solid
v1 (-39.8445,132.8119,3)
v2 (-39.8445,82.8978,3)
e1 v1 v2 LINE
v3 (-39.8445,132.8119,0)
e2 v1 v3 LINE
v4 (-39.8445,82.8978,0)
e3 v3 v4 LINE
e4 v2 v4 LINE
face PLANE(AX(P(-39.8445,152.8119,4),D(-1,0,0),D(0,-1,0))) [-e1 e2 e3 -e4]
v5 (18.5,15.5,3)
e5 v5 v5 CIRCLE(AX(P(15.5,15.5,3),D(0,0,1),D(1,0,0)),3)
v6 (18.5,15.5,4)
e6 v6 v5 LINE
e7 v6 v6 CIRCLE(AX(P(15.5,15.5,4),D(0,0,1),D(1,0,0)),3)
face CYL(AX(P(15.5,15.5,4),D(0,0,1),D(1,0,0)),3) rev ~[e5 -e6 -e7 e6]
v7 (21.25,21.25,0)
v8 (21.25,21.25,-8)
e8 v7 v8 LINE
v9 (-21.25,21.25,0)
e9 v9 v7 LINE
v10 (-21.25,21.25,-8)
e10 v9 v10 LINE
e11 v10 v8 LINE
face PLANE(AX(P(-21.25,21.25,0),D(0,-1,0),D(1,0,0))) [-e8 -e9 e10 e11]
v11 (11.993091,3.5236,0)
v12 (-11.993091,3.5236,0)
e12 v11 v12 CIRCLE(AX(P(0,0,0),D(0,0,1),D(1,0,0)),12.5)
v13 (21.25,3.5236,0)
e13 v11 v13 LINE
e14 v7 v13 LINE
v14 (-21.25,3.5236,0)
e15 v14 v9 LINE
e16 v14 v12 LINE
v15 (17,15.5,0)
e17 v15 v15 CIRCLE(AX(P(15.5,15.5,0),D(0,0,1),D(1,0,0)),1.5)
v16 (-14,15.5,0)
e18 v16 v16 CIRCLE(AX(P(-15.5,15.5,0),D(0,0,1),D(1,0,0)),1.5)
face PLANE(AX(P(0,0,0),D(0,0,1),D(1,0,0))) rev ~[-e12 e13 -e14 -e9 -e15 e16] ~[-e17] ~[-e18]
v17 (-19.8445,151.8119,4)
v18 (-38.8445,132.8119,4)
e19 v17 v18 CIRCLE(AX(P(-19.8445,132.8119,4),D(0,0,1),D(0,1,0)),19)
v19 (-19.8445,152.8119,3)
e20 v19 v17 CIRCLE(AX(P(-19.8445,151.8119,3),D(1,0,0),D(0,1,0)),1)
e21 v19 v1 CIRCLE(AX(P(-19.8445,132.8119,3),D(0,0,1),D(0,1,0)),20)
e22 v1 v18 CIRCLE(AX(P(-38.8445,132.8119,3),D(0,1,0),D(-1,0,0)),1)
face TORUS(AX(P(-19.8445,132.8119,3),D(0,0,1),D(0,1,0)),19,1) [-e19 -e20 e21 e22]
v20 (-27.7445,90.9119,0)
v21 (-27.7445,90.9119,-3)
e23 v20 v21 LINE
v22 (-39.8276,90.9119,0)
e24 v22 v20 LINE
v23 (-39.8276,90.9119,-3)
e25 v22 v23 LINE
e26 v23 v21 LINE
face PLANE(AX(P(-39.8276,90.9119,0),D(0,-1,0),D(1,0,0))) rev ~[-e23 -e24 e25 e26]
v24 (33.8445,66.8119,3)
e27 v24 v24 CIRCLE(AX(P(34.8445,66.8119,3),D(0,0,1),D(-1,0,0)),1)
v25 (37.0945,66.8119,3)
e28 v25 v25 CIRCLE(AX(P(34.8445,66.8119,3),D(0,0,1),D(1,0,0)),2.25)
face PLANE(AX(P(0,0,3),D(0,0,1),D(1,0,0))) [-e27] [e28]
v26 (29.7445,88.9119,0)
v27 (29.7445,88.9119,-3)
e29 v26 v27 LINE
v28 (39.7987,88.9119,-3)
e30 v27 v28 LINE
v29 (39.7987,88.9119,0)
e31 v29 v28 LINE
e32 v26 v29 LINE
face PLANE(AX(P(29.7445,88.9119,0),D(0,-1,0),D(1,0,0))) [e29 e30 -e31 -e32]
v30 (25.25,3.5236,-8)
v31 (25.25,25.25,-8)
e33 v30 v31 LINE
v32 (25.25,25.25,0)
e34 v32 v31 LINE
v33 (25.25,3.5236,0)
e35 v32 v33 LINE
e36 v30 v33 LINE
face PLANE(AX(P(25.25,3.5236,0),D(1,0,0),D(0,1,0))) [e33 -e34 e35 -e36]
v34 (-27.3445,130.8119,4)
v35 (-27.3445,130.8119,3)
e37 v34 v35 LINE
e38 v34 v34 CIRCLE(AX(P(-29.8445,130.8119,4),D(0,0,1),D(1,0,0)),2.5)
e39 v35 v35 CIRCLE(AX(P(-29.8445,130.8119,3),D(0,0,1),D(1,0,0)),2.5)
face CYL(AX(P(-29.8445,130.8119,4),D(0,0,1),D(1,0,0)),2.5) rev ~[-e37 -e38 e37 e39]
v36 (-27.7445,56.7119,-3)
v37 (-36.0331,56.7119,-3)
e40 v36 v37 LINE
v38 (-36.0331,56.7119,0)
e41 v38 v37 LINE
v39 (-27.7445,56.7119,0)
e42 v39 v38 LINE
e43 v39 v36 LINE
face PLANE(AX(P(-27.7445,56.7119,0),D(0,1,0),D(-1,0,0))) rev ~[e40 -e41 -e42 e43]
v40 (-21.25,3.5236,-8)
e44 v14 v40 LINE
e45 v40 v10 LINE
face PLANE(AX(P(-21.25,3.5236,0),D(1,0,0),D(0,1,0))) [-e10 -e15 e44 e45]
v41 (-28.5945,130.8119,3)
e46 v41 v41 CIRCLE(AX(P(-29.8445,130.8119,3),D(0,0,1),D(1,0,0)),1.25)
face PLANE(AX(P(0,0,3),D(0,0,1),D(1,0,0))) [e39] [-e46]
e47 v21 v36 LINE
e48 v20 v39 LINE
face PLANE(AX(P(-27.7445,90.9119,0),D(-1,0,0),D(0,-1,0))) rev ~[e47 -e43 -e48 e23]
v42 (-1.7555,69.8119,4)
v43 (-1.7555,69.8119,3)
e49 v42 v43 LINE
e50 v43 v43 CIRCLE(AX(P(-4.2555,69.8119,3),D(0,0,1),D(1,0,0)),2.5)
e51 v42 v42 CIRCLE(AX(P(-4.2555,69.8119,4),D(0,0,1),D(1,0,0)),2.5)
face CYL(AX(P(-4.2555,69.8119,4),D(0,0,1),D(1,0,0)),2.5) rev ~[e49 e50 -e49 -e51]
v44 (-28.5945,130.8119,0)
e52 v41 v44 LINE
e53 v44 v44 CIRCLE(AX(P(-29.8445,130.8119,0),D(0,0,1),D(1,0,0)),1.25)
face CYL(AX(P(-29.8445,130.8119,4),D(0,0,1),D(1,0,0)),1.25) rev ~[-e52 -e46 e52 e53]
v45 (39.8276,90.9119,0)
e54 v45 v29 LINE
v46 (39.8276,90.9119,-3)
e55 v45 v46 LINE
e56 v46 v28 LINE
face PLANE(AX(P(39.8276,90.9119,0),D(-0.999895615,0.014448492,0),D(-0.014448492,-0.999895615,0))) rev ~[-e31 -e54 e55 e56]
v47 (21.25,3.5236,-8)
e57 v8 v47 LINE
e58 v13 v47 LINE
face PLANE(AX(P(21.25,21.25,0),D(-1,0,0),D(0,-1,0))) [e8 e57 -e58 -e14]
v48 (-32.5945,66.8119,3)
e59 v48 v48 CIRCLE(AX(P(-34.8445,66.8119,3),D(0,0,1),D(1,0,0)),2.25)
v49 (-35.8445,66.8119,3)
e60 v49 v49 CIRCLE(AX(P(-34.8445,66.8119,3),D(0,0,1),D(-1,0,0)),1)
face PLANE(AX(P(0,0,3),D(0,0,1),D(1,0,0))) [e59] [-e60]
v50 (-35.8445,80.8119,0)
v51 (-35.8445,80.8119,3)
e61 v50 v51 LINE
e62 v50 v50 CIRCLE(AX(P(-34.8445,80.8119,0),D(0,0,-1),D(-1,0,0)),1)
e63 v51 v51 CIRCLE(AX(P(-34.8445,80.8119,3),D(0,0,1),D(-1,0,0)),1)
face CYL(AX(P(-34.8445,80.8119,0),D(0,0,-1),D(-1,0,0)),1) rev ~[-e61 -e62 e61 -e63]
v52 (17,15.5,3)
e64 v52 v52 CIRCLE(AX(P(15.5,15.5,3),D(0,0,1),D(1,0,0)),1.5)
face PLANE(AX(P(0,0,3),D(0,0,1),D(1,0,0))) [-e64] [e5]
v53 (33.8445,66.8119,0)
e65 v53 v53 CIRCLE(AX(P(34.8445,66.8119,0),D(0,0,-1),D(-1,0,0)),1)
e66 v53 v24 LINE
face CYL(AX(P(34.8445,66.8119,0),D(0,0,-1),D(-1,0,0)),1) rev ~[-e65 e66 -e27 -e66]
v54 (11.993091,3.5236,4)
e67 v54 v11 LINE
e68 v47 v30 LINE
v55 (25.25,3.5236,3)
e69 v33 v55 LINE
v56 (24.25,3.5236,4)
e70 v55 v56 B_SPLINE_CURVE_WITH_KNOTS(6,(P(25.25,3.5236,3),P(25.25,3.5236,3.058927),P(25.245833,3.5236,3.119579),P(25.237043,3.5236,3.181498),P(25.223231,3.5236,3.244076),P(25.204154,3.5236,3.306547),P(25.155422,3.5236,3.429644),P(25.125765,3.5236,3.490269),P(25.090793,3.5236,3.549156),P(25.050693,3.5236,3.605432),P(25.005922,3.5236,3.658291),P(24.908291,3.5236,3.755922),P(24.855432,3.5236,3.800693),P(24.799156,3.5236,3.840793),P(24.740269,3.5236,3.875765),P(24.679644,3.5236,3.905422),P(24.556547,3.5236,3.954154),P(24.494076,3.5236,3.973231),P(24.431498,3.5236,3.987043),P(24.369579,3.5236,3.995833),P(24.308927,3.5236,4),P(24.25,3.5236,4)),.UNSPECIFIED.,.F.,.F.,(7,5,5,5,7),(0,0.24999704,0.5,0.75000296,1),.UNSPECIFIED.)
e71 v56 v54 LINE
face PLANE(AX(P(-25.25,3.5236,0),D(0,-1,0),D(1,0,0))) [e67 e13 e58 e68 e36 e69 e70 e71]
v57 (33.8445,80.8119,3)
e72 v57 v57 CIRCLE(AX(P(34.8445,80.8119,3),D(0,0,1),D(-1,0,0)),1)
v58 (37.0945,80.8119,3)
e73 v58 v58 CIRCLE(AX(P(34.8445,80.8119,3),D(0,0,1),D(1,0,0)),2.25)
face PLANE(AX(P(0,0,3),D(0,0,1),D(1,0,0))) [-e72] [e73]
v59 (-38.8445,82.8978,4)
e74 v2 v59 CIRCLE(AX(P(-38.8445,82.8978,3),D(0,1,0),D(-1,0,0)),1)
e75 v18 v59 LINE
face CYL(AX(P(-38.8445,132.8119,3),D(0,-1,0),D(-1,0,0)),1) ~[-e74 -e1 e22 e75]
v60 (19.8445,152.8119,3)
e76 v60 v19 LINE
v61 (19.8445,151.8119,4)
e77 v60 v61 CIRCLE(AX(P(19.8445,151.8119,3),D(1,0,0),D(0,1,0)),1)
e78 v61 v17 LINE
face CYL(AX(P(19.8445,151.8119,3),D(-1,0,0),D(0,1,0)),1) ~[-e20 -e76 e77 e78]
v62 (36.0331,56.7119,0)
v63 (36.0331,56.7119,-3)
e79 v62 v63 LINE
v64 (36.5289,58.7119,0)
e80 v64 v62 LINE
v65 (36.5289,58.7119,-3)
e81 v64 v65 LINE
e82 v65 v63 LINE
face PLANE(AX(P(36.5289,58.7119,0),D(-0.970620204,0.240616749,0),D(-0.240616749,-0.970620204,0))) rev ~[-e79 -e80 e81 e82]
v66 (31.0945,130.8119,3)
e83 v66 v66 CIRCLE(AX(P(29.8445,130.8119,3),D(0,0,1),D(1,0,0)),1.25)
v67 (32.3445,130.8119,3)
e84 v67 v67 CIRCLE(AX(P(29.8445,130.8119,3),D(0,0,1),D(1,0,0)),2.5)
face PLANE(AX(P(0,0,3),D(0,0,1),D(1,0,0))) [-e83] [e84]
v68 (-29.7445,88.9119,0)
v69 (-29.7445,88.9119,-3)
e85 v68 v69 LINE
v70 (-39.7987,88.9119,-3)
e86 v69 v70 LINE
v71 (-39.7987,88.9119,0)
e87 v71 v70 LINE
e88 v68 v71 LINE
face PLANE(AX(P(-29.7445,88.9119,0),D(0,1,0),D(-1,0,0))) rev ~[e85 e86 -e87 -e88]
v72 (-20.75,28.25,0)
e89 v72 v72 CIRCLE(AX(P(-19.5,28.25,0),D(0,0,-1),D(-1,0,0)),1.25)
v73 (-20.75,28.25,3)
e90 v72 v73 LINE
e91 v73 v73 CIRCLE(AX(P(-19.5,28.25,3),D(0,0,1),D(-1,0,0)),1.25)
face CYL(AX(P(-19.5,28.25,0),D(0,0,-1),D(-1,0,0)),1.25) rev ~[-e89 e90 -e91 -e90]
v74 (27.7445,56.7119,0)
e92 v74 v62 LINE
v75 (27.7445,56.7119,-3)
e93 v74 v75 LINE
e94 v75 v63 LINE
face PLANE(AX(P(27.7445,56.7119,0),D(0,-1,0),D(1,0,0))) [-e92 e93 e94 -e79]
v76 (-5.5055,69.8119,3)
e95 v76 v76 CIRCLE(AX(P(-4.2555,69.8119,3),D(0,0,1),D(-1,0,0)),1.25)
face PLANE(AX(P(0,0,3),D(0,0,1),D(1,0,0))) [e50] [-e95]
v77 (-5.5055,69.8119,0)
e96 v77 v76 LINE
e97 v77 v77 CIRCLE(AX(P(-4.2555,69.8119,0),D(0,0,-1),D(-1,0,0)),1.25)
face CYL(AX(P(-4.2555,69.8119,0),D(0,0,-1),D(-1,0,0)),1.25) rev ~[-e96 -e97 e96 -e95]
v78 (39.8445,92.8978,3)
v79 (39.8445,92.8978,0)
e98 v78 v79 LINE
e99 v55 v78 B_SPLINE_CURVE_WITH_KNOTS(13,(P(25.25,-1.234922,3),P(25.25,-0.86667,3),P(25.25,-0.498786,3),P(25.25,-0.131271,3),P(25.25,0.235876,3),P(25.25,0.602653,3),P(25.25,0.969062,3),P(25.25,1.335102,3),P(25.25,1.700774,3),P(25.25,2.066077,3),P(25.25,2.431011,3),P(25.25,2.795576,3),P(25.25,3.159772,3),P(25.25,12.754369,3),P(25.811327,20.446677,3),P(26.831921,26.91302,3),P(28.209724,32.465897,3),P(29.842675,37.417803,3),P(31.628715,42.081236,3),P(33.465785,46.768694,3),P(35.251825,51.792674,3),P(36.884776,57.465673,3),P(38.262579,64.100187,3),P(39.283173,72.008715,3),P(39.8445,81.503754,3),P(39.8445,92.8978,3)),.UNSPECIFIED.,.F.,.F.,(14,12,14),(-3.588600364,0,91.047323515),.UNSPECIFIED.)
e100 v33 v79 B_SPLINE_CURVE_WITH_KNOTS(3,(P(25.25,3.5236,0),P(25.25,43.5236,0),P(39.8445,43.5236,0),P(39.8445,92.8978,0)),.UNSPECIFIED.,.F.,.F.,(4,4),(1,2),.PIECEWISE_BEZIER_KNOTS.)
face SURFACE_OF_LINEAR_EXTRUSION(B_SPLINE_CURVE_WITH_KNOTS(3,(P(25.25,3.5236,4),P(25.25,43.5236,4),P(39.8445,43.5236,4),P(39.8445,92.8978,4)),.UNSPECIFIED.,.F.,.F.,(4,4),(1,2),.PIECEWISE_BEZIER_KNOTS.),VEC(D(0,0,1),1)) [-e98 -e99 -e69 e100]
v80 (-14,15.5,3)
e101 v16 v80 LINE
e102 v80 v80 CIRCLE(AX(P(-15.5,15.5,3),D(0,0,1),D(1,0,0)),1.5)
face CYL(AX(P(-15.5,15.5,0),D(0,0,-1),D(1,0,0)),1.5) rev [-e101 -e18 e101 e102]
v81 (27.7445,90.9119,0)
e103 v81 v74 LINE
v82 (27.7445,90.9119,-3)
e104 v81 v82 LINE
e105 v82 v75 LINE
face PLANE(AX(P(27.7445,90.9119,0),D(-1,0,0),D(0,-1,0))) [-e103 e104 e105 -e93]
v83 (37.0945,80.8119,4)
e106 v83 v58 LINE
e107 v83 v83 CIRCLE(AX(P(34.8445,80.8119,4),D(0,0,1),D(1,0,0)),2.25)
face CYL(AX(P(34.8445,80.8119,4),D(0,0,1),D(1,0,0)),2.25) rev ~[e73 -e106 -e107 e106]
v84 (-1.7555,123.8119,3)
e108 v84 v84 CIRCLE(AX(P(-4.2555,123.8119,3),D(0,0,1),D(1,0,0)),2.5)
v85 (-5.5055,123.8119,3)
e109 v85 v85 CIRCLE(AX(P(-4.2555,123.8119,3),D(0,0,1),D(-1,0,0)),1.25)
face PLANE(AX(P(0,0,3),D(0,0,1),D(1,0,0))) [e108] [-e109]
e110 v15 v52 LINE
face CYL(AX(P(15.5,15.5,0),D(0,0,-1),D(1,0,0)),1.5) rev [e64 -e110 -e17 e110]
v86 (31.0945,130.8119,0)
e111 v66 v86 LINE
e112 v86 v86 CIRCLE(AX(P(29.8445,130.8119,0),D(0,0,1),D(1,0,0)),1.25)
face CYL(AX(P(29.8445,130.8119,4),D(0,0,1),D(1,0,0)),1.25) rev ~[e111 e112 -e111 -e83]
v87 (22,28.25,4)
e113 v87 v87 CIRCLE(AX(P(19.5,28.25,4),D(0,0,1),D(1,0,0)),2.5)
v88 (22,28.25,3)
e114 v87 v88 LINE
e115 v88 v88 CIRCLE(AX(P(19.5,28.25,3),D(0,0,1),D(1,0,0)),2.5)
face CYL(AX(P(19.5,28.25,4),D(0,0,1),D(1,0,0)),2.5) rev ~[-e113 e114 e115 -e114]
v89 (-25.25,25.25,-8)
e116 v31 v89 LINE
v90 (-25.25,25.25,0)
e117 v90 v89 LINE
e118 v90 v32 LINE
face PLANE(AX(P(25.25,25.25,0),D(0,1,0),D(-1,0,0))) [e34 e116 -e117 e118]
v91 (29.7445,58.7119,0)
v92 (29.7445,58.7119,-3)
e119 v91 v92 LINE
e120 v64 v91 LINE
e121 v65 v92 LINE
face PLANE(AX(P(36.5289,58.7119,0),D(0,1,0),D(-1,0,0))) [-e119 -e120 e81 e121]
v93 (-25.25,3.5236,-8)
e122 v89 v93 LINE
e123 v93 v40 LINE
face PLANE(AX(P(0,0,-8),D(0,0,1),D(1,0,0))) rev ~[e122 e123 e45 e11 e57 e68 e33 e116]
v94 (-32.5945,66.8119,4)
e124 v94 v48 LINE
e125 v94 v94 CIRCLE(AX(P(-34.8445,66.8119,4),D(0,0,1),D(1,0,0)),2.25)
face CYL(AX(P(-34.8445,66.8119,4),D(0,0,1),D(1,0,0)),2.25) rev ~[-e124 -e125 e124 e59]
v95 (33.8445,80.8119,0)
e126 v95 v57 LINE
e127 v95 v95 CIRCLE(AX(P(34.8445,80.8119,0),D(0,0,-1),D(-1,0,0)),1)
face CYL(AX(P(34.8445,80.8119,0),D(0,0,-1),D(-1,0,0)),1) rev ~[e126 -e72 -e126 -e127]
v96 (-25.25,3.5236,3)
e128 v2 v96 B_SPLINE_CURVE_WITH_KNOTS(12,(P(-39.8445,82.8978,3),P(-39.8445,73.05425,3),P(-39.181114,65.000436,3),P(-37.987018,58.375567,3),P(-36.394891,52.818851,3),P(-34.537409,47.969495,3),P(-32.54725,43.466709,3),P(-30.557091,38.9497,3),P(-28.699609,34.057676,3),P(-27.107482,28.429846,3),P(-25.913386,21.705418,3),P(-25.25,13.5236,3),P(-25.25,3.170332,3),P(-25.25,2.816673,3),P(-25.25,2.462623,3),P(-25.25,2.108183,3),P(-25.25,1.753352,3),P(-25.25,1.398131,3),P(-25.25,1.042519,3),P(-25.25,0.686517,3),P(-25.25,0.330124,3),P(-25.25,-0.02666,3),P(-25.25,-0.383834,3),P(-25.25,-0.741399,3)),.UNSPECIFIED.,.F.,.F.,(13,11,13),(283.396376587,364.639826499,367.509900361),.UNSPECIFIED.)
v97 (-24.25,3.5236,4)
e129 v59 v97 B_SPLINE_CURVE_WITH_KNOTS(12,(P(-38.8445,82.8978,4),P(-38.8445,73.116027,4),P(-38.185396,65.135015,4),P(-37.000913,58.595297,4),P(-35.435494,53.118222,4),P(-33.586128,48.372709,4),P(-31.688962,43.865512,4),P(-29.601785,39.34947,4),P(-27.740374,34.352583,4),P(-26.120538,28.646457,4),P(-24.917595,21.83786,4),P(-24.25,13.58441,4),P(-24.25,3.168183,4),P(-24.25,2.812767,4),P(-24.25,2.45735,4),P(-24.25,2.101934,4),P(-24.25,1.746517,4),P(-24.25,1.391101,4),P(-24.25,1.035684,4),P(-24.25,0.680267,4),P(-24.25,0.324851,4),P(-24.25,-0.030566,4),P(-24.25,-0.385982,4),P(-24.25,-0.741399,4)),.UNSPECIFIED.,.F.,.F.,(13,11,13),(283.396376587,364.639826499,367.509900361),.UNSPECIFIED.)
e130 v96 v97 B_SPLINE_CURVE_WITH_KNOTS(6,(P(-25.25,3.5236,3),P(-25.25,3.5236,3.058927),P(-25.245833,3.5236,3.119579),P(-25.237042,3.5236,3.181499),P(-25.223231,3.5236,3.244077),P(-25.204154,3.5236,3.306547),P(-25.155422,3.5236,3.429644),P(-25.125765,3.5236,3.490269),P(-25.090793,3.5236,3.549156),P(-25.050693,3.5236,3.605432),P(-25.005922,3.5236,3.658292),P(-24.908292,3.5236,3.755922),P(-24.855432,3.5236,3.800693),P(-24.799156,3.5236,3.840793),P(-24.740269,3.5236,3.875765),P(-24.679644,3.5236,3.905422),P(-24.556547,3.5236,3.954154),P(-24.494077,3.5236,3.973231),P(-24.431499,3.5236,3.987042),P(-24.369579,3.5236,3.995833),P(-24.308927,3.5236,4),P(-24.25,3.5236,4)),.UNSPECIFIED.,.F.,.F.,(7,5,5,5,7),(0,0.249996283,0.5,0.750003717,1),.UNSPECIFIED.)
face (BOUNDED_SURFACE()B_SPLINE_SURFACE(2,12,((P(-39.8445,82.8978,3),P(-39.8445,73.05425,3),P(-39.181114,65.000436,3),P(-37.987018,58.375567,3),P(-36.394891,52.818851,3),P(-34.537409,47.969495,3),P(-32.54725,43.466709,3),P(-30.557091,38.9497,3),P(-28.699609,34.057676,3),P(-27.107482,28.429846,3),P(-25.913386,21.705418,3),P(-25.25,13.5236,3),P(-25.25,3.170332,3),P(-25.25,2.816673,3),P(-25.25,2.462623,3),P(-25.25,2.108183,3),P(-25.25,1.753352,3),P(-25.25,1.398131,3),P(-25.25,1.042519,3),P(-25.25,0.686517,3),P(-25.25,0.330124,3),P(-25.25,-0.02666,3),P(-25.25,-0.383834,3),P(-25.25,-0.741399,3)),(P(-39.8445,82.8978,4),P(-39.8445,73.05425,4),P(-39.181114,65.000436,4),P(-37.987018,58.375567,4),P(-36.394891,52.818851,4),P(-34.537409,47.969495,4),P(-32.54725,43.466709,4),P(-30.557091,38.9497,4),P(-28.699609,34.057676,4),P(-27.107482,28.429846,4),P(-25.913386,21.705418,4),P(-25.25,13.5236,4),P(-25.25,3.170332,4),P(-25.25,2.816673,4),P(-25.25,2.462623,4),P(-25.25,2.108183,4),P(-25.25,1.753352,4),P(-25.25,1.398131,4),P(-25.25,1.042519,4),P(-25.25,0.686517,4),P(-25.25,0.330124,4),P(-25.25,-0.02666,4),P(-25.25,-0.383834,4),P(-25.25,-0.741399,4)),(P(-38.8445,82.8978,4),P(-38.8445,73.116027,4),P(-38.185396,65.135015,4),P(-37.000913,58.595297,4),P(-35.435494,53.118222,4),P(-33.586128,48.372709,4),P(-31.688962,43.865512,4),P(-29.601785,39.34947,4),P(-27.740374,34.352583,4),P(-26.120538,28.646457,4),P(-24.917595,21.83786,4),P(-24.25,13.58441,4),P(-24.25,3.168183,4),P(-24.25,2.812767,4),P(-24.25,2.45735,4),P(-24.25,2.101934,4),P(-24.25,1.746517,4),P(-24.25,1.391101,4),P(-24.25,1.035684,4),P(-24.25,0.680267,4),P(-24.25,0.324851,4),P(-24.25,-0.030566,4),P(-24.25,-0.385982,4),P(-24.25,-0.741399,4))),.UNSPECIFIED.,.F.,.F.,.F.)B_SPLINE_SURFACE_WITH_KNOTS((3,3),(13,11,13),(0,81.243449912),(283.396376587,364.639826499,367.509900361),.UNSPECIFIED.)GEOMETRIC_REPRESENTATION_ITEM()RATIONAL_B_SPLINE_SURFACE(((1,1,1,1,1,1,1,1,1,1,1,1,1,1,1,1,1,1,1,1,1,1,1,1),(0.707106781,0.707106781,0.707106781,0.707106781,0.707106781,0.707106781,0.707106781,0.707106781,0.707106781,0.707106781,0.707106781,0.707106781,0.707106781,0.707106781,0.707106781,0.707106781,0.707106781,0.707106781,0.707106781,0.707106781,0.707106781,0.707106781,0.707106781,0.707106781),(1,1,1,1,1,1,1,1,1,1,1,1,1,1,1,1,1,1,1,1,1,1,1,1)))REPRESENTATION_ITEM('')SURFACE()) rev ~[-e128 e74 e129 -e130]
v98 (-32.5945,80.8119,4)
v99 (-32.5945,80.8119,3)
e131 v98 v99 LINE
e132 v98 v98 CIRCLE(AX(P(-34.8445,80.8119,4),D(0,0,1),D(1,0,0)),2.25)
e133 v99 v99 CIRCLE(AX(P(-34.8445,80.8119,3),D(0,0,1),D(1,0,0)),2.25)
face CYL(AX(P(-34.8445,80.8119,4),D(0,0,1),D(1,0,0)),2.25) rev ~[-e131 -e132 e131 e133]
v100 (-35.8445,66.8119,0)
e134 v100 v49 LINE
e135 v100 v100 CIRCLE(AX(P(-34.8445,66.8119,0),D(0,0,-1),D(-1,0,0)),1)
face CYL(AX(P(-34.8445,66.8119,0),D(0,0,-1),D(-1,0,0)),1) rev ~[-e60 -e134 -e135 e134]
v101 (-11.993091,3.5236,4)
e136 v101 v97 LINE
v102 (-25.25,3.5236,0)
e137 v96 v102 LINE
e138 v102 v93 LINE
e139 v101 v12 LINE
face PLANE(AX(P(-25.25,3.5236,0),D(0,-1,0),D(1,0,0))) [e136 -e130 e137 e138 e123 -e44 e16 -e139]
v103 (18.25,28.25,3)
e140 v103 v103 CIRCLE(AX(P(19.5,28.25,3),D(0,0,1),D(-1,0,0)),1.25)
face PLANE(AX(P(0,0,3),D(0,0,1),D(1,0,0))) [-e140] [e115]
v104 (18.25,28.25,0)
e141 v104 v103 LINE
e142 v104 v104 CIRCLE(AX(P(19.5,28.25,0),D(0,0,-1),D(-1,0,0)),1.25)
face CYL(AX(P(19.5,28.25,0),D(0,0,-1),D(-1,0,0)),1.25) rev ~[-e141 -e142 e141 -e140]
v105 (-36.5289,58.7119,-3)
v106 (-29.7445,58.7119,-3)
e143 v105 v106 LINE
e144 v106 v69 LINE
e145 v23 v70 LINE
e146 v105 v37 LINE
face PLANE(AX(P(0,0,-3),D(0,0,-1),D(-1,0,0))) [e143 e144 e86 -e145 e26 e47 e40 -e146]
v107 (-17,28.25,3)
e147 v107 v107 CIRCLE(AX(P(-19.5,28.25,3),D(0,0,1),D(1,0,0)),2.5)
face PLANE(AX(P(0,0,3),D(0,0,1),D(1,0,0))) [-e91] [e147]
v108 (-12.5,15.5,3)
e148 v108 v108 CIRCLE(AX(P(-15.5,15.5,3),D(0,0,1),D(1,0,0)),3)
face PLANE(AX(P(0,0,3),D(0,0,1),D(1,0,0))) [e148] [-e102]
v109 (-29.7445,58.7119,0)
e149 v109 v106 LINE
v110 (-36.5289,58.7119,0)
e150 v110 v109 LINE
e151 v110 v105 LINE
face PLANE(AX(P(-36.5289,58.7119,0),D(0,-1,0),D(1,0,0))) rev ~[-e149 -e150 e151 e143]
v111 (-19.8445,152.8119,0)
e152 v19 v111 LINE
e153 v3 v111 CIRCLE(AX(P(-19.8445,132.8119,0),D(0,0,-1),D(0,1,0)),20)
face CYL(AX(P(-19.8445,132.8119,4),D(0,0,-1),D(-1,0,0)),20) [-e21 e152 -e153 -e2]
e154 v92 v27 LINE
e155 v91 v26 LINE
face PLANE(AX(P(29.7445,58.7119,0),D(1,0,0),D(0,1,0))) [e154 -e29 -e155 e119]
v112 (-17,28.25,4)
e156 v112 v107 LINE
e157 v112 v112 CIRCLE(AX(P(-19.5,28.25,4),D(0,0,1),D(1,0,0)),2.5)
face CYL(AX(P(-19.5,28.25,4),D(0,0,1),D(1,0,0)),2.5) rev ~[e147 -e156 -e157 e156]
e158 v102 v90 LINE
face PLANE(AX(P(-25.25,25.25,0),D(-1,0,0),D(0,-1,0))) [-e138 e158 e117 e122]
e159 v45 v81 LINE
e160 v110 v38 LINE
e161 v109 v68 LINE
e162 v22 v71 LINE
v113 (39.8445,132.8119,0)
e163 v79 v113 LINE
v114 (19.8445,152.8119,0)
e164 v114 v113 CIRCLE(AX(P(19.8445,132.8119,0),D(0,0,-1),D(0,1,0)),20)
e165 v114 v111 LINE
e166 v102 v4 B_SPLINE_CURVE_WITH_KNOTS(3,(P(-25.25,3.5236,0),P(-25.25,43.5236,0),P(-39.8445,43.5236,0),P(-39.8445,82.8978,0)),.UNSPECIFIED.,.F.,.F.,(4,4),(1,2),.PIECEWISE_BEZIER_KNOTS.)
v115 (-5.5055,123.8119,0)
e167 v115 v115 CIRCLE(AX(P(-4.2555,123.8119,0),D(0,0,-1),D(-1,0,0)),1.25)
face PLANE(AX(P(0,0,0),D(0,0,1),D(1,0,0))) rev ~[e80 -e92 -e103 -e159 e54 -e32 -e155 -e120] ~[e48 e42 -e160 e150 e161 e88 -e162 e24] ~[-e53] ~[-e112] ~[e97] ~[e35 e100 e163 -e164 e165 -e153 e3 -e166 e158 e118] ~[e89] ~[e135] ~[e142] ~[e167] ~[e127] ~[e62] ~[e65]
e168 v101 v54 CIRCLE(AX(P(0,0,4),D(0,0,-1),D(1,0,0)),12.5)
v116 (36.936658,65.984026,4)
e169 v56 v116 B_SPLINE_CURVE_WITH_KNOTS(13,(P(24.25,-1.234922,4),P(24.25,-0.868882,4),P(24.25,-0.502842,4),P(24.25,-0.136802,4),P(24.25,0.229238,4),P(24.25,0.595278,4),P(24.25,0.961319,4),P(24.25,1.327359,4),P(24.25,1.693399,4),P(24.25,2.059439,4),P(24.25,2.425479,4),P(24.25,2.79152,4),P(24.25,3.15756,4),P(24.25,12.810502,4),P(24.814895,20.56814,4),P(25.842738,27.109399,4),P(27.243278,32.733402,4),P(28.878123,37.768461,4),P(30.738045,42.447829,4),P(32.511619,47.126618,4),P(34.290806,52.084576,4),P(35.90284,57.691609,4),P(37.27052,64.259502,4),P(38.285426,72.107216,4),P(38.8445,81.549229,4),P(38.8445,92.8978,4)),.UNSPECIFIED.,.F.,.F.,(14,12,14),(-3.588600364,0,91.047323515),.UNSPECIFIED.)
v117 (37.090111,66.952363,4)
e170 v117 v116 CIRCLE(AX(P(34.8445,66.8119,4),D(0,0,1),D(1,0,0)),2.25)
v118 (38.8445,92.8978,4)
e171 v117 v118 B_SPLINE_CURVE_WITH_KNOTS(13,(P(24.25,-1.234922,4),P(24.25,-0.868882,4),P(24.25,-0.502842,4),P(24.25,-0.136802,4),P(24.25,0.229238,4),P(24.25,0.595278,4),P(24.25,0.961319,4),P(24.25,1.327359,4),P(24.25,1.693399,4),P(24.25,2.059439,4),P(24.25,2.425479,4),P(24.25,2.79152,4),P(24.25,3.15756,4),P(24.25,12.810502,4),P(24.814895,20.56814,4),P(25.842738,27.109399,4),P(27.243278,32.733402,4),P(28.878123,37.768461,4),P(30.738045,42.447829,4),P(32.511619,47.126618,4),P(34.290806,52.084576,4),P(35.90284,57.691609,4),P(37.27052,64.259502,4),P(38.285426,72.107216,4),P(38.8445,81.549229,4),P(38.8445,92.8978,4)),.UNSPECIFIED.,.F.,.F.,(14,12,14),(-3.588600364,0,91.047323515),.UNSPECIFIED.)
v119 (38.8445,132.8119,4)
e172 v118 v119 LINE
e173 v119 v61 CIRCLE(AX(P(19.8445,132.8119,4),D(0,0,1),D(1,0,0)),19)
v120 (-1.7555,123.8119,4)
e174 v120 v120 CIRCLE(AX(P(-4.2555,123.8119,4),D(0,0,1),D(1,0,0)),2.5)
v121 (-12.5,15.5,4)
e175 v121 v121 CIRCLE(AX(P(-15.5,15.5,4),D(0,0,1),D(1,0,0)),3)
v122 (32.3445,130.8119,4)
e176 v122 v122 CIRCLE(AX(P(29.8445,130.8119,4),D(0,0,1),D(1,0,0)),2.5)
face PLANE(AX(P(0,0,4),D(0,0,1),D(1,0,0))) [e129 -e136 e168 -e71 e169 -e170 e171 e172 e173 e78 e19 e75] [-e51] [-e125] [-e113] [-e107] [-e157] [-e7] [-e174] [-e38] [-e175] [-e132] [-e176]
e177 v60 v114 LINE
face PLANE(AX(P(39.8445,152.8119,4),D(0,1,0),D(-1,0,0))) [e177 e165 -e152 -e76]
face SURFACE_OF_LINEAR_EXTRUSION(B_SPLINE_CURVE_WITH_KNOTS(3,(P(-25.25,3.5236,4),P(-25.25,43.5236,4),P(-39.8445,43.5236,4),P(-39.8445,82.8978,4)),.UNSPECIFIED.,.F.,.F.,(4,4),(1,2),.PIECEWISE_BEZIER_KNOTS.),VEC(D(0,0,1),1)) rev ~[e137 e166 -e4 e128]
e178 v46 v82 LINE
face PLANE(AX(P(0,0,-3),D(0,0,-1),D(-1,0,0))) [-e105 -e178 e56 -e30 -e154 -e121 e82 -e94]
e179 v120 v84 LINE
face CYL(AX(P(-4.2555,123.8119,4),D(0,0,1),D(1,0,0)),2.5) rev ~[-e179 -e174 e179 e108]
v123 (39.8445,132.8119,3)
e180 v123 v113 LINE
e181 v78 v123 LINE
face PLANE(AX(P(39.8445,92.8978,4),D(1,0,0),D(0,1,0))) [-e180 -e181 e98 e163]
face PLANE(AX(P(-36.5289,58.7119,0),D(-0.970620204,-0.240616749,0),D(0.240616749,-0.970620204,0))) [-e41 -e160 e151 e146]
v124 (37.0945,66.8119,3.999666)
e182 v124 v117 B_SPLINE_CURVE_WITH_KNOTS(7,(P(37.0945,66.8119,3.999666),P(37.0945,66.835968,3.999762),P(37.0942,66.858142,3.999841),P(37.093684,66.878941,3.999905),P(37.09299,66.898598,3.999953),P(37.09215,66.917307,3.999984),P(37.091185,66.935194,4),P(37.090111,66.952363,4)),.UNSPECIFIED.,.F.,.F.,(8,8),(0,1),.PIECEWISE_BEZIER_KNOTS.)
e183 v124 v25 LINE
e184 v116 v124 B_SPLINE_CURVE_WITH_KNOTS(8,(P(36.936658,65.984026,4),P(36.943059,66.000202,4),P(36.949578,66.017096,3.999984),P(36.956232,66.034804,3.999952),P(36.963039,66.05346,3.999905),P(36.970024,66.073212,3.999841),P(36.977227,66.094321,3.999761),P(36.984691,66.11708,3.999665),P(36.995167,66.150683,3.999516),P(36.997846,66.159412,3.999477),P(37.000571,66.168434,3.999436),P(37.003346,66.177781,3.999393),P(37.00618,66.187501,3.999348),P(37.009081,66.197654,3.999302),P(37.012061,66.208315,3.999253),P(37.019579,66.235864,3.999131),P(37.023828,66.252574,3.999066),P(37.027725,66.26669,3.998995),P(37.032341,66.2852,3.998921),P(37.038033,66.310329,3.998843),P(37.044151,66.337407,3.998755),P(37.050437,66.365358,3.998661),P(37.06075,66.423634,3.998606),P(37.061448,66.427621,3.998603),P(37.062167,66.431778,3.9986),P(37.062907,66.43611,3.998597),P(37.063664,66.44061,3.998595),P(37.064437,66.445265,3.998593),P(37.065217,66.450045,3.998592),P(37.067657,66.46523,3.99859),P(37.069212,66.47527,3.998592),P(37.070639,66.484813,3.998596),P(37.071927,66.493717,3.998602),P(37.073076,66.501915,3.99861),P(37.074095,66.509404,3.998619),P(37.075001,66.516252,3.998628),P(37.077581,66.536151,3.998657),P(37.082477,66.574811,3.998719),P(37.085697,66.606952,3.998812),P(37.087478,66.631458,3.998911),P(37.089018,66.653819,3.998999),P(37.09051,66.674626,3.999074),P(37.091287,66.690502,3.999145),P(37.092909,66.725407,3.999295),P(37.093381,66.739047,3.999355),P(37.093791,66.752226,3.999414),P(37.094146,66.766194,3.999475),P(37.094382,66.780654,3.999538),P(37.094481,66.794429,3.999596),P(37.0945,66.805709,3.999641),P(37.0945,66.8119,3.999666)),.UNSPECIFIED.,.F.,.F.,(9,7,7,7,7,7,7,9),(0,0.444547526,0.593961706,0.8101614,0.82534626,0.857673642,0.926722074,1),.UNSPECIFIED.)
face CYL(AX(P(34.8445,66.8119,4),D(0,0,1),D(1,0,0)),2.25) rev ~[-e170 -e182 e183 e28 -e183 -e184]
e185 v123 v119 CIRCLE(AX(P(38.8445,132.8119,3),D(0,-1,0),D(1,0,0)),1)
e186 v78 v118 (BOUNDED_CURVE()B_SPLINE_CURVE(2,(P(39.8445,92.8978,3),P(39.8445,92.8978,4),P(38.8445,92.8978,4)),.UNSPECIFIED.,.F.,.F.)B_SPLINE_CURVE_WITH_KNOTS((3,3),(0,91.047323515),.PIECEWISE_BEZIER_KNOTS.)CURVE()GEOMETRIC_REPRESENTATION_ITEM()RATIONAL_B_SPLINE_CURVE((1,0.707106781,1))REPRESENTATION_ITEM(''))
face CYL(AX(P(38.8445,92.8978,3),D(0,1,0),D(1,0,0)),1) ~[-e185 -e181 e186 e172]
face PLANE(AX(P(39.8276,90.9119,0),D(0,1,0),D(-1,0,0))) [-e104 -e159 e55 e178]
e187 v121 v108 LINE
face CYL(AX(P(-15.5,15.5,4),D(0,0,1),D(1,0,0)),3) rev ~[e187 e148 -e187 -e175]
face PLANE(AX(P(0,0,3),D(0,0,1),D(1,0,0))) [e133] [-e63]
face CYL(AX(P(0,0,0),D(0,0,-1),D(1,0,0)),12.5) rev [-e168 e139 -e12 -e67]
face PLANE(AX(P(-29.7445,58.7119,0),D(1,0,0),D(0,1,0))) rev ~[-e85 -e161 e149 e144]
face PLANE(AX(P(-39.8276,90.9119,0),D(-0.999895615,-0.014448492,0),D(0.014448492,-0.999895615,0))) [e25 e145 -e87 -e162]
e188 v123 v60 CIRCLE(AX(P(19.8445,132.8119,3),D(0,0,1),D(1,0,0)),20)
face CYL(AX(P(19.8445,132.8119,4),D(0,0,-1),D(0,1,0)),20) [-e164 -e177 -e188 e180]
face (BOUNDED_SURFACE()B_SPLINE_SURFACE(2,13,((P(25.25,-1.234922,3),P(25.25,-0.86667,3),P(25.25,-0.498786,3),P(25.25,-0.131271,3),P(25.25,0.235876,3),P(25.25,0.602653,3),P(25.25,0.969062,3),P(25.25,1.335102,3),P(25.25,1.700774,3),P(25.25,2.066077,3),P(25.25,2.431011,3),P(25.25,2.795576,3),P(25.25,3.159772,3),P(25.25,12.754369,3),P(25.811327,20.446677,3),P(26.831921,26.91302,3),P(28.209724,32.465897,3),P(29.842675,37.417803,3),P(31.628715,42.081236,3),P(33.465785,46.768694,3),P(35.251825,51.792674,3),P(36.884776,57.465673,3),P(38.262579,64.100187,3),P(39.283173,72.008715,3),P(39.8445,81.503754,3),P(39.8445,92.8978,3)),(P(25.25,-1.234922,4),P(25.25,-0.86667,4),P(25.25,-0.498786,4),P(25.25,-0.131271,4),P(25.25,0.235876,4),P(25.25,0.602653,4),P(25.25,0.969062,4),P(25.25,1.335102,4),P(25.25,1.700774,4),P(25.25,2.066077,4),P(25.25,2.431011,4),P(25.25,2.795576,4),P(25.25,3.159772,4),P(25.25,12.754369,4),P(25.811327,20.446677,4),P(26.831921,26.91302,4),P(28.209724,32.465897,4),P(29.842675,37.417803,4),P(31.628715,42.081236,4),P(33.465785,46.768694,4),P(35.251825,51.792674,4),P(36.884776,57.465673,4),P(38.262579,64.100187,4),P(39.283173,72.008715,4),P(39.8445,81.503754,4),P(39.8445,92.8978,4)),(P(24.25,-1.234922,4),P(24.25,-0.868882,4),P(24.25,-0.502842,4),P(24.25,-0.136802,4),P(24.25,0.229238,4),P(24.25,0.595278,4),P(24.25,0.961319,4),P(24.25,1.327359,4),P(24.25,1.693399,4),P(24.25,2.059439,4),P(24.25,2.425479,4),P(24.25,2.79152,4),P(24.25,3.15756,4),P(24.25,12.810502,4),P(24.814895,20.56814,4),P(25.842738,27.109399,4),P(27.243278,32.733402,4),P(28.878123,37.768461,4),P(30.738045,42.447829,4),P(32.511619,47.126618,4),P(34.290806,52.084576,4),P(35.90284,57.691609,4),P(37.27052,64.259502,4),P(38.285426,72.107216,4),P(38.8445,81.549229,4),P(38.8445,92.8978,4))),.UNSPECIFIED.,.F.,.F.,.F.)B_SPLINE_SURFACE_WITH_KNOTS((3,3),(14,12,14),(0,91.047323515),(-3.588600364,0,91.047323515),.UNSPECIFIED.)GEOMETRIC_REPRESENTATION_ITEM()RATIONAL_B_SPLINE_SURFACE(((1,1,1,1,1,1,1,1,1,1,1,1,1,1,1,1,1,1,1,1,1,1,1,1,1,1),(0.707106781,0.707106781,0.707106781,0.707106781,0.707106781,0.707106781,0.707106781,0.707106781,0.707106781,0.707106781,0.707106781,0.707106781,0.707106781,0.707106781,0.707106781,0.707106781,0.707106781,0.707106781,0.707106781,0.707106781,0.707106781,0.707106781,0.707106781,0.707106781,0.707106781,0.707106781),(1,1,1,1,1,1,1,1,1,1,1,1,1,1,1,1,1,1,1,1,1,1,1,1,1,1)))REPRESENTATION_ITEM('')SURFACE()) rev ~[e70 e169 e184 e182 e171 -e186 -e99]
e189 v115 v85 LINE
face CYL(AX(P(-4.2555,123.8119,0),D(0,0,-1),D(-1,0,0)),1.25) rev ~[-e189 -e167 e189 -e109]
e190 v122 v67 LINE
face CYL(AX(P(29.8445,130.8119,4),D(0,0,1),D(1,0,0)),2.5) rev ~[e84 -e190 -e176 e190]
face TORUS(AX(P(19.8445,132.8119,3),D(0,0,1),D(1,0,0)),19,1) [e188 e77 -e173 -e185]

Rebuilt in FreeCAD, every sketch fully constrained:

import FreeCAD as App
import Part
import Sketcher
from FreeCAD import Vector


def edges_at(feature, points):
    """Names of the edges that pass closest to the given points."""
    edges = feature.Shape.Edges
    near = lambda p: min(range(len(edges)), key=lambda i: edges[i].distToShape(Part.Vertex(*p))[0])
    return sorted({f"Edge{near(p) + 1}" for p in points})


def add_polygon(sketch, points):
    """Adds a closed chain of lines whose ends are joined by coincident constraints."""
    first, n = sketch.GeometryCount, len(points)
    for a, b in zip(points, points[1:] + points[:1]):
        sketch.addGeometry(Part.LineSegment(App.Vector(*a, 0), App.Vector(*b, 0)), False)
    for i in range(n):
        sketch.addConstraint(Sketcher.Constraint("Coincident", first + i, 2, first + (i + 1) % n, 1))

doc = App.newDocument("Part")
body = doc.addObject("PartDesign::Body", "Body")

# Sketch on XY plane
sketch1 = doc.addObject("Sketcher::SketchObject", "Sketch")
body.addObject(sketch1)
sketch1.AttachmentSupport = (doc.XY_Plane, [""])
sketch1.MapMode = "FlatFace"
add_polygon(sketch1, [(-25.25, 3.5236), (25.25, 3.5236), (25.25, 25.25), (-25.25, 25.25)])  # lines 0-3
sketch1.addGeometry(Part.Circle(Vector(15.5, 15.5, 0), Vector(0, 0, 1), 1.5), False)  # 4
sketch1.addGeometry(Part.Circle(Vector(-15.5, 15.5, 0), Vector(0, 0, 1), 1.5), False)  # 5
sketch1.addConstraint([
    Sketcher.Constraint("Horizontal", 0),
    Sketcher.Constraint("Vertical", 1),
    Sketcher.Constraint("Horizontal", 2),
    Sketcher.Constraint("Vertical", 3),
    Sketcher.Constraint("Equal", 4, 5),
    Sketcher.Constraint("Symmetric", 4, 3, 5, 3, -2),
    Sketcher.Constraint("Diameter", 4, 3.0),
    Sketcher.Constraint("DistanceX", -1, 1, 4, 3, 15.5),
    Sketcher.Constraint("DistanceY", -1, 1, 4, 3, 15.5),
    Sketcher.Constraint("DistanceX", 0, 1, 0, 2, 50.5),
    Sketcher.Constraint("DistanceX", -1, 1, 0, 2, 25.25),
    Sketcher.Constraint("DistanceY", -1, 1, 1, 2, 25.25),
    Sketcher.Constraint("DistanceY", 1, 1, 1, 2, 21.7264),
])
pad1 = doc.addObject("PartDesign::Pad", "Pad")
body.addObject(pad1)
pad1.Profile = sketch1
pad1.Length = 4

# Sketch on XY plane
sketch2 = doc.addObject("Sketcher::SketchObject", "Sketch001")
body.addObject(sketch2)
sketch2.AttachmentSupport = (doc.XY_Plane, [""])
sketch2.MapMode = "FlatFace"
add_polygon(sketch2, [(-21.25, 3.5236), (-21.25, 21.25), (21.25, 21.25), (21.25, 3.5236), (25.25, 3.5236), (25.25, 25.25), (-25.25, 25.25), (-25.25, 3.5236)])  # lines 0-7
sketch2.addConstraint([
    Sketcher.Constraint("Vertical", 0),
    Sketcher.Constraint("Horizontal", 1),
    Sketcher.Constraint("Vertical", 2),
    Sketcher.Constraint("Horizontal", 3),
    Sketcher.Constraint("Vertical", 4),
    Sketcher.Constraint("Horizontal", 5),
    Sketcher.Constraint("Vertical", 6),
    Sketcher.Constraint("Horizontal", 7),
    Sketcher.Constraint("Symmetric", 3, 2, 6, 2, -2),
    Sketcher.Constraint("Equal", 3, 7),
    Sketcher.Constraint("DistanceX", 3, 1, 3, 2, 4.0),
    Sketcher.Constraint("DistanceX", 1, 1, 1, 2, 42.5),
    Sketcher.Constraint("DistanceY", 1, 2, 4, 2, 4.0),
    Sketcher.Constraint("DistanceY", -1, 1, 0, 2, 21.25),
    Sketcher.Constraint("DistanceY", 0, 1, 0, 2, 17.7264),
])
pad2 = doc.addObject("PartDesign::Pad", "Pad001")
body.addObject(pad2)
pad2.Profile = sketch2
pad2.Length = 8
pad2.Reversed = True

# Sketch on XY plane
sketch3 = doc.addObject("Sketcher::SketchObject", "Sketch002")
body.addObject(sketch3)
sketch3.AttachmentSupport = (doc.XY_Plane, [""])
sketch3.MapMode = "FlatFace"
sketch3.AttachmentOffset = App.Placement(Vector(0, 0, 4), App.Rotation())
sketch3.addGeometry([
    Part.BSplineCurve([Vector(-25.25, 3.5236, 0), Vector(-25.25, 43.5236, 0), Vector(-39.8445, 43.5236, 0), Vector(-39.8445, 82.8978, 0)], [4, 4], [1, 2], False, 3, [1, 1, 1, 1], False),  # 0
    Part.LineSegment(Vector(-25.25, 3.5236, 0), Vector(25.25, 3.5236, 0)),  # 1
    Part.BSplineCurve([Vector(25.25, 3.5236, 0), Vector(25.25, 43.5236, 0), Vector(39.8445, 43.5236, 0), Vector(39.8445, 92.8978, 0)], [4, 4], [1, 2], False, 3, [1, 1, 1, 1], False),  # 2
    Part.LineSegment(Vector(39.8445, 92.8978, 0), Vector(39.8445, 152.8119, 0)),  # 3
    Part.LineSegment(Vector(39.8445, 152.8119, 0), Vector(-39.8445, 152.8119, 0)),  # 4
    Part.LineSegment(Vector(-39.8445, 152.8119, 0), Vector(-39.8445, 82.8978, 0)),  # 5
    Part.Circle(Vector(-15.5, 15.5, 0), Vector(0, 0, 1), 1.5),  # 6
    Part.Circle(Vector(15.5, 15.5, 0), Vector(0, 0, 1), 1.5),  # 7
], False)
sketch3.addConstraint([
    Sketcher.Constraint("Block", 0),
    Sketcher.Constraint("Block", 2),
    Sketcher.Constraint("Coincident", 0, 1, 1, 1),
    Sketcher.Constraint("Coincident", 1, 2, 2, 1),
    Sketcher.Constraint("Coincident", 2, 2, 3, 1),
    Sketcher.Constraint("Coincident", 3, 2, 4, 1),
    Sketcher.Constraint("Coincident", 4, 2, 5, 1),
    Sketcher.Constraint("Coincident", 5, 2, 0, 2),
    Sketcher.Constraint("Vertical", 3),
    Sketcher.Constraint("Horizontal", 4),
    Sketcher.Constraint("Vertical", 5),
    Sketcher.Constraint("Equal", 6, 7),
    Sketcher.Constraint("Symmetric", 6, 3, 7, 3, -2),
    Sketcher.Constraint("Diameter", 6, 3.0),
    Sketcher.Constraint("DistanceX", 6, 3, 7, 3, 31.0),
    Sketcher.Constraint("DistanceY", -1, 1, 6, 3, 15.5),
    Sketcher.Constraint("DistanceY", 3, 1, 3, 2, 59.914),
])
pad3 = doc.addObject("PartDesign::Pad", "Pad002")
body.addObject(pad3)
pad3.Profile = sketch3
pad3.Length = 4
pad3.Reversed = True
doc.recompute()

fillet = doc.addObject("PartDesign::Fillet", "Fillet")
body.addObject(fillet)
fillet.Base = (pad3, edges_at(pad3, [(-39.844, 152.812, 2), (39.844, 152.812, 2)]))
fillet.Radius = 20

# Sketch on XY plane
sketch4 = doc.addObject("Sketcher::SketchObject", "Sketch003")
body.addObject(sketch4)
sketch4.AttachmentSupport = (doc.XY_Plane, [""])
sketch4.MapMode = "FlatFace"
sketch4.addGeometry([
    Part.Circle(Vector(19.5, 28.25, 0), Vector(0, 0, 1), 1.25),
    Part.Circle(Vector(-19.5, 28.25, 0), Vector(0, 0, 1), 1.25),
], False)
sketch4.addConstraint([
    Sketcher.Constraint("Equal", 0, 1),
    Sketcher.Constraint("Symmetric", 0, 3, 1, 3, -2),
    Sketcher.Constraint("Diameter", 0, 2.5),
    Sketcher.Constraint("DistanceX", -1, 1, 0, 3, 19.5),
    Sketcher.Constraint("DistanceY", -1, 1, 0, 3, 28.25),
])
pocket1 = doc.addObject("PartDesign::Pocket", "Pocket")
body.addObject(pocket1)
pocket1.Profile = sketch4
pocket1.Length = 10
pocket1.Reversed = True

# Sketch on XY plane
sketch5 = doc.addObject("Sketcher::SketchObject", "Sketch004")
body.addObject(sketch5)
sketch5.AttachmentSupport = (doc.XY_Plane, [""])
sketch5.MapMode = "FlatFace"
sketch5.addGeometry([
    Part.Circle(Vector(34.8445, 80.8119, 0), Vector(0, 0, 1), 1),
    Part.Circle(Vector(34.8445, 66.8119, 0), Vector(0, 0, 1), 1),
    Part.Circle(Vector(-34.8445, 80.8119, 0), Vector(0, 0, 1), 1),
    Part.Circle(Vector(-34.8445, 66.8119, 0), Vector(0, 0, 1), 1),
], False)
sketch5.addConstraint([
    Sketcher.Constraint("Equal", 0, 1),
    Sketcher.Constraint("Equal", 1, 2),
    Sketcher.Constraint("Equal", 2, 3),
    Sketcher.Constraint("Symmetric", 0, 3, 2, 3, -2),
    Sketcher.Constraint("Symmetric", 1, 3, 3, 3, -2),
    Sketcher.Constraint("Vertical", 0, 3, 1, 3),
    Sketcher.Constraint("Diameter", 0, 2.0),
    Sketcher.Constraint("DistanceY", 1, 3, 0, 3, 14.0),
    Sketcher.Constraint("DistanceY", -1, 1, 0, 3, 80.812),
    Sketcher.Constraint("DistanceX", 2, 3, 0, 3, 69.689),
])
pocket2 = doc.addObject("PartDesign::Pocket", "Pocket001")
body.addObject(pocket2)
pocket2.Profile = sketch5
pocket2.Length = 10
pocket2.Reversed = True

# Sketch on XY plane
sketch6 = doc.addObject("Sketcher::SketchObject", "Sketch005")
body.addObject(sketch6)
sketch6.AttachmentSupport = (doc.XY_Plane, [""])
sketch6.MapMode = "FlatFace"
add_polygon(sketch6, [(29.7445, 58.7119), (36.5289, 58.7119), (36.0331, 56.7119), (27.7445, 56.7119), (27.7445, 90.9119), (39.8276, 90.9119), (39.7987, 88.9119), (29.7445, 88.9119)])  # lines 0-7
sketch6.addConstraint([
    Sketcher.Constraint("Horizontal", 0),
    Sketcher.Constraint("Horizontal", 2),
    Sketcher.Constraint("Vertical", 3),
    Sketcher.Constraint("Horizontal", 4),
    Sketcher.Constraint("Horizontal", 6),
    Sketcher.Constraint("Vertical", 7),
    Sketcher.Constraint("DistanceY", 1, 2, 0, 2, 2.0),
    Sketcher.Constraint("DistanceY", 5, 2, 4, 2, 2.0),
    Sketcher.Constraint("DistanceX", 3, 2, 6, 2, 2.0),
    Sketcher.Constraint("DistanceY", 3, 1, 3, 2, 34.2),
    Sketcher.Constraint("Distance", 5, 2.0002),
    Sketcher.Constraint("DistanceX", 4, 1, 4, 2, 12.083),
    Sketcher.Constraint("DistanceX", 0, 1, 0, 2, 6.7844),
    Sketcher.Constraint("DistanceX", 2, 2, 2, 1, 8.2886),
    Sketcher.Constraint("DistanceX", -1, 1, 0, 2, 36.529),
    Sketcher.Constraint("DistanceY", -1, 1, 0, 2, 58.712),
])
pad4 = doc.addObject("PartDesign::Pad", "Pad003")
body.addObject(pad4)
pad4.Profile = sketch6
pad4.Length = 3
pad4.Reversed = True

# Sketch on XY plane
sketch7 = doc.addObject("Sketcher::SketchObject", "Sketch006")
body.addObject(sketch7)
sketch7.AttachmentSupport = (doc.XY_Plane, [""])
sketch7.MapMode = "FlatFace"
add_polygon(sketch7, [(-36.0331, 56.7119), (-36.5289, 58.7119), (-29.7445, 58.7119), (-29.7445, 88.9119), (-39.7987, 88.9119), (-39.8276, 90.9119), (-27.7445, 90.9119), (-27.7445, 56.7119)])  # lines 0-7
sketch7.addConstraint([
    Sketcher.Constraint("Horizontal", 1),
    Sketcher.Constraint("Vertical", 2),
    Sketcher.Constraint("Horizontal", 3),
    Sketcher.Constraint("Horizontal", 5),
    Sketcher.Constraint("Vertical", 6),
    Sketcher.Constraint("Horizontal", 7),
    Sketcher.Constraint("DistanceY", 3, 2, 4, 2, 2.0),
    Sketcher.Constraint("DistanceX", 2, 2, 5, 2, 2.0),
    Sketcher.Constraint("DistanceY", 6, 2, 1, 2, 2.0),
    Sketcher.Constraint("DistanceY", 2, 1, 2, 2, 30.2),
    Sketcher.Constraint("Distance", 4, 2.0002),
    Sketcher.Constraint("DistanceX", 5, 1, 5, 2, 12.083),
    Sketcher.Constraint("DistanceX", 1, 1, 1, 2, 6.7844),
    Sketcher.Constraint("DistanceX", 7, 2, 7, 1, 8.2886),
    Sketcher.Constraint("DistanceX", 0, 2, -1, 1, 36.529),
    Sketcher.Constraint("DistanceY", -1, 1, 0, 2, 58.712),
])
pad5 = doc.addObject("PartDesign::Pad", "Pad004")
body.addObject(pad5)
pad5.Profile = sketch7
pad5.Length = 3
pad5.Reversed = True

# Sketch on XY plane
sketch8 = doc.addObject("Sketcher::SketchObject", "Sketch007")
body.addObject(sketch8)
sketch8.AttachmentSupport = (doc.XY_Plane, [""])
sketch8.MapMode = "FlatFace"
sketch8.addGeometry(Part.Circle(Vector(0, 0, 0), Vector(0, 0, 1), 12.5), False)
sketch8.addConstraint([
    Sketcher.Constraint("Coincident", 0, 3, -1, 1),
    Sketcher.Constraint("Diameter", 0, 25.0),
])
pocket3 = doc.addObject("PartDesign::Pocket", "Pocket002")
body.addObject(pocket3)
pocket3.Profile = sketch8
pocket3.Length = 10
pocket3.Reversed = True

# Sketch on XY plane
sketch9 = doc.addObject("Sketcher::SketchObject", "Sketch008")
body.addObject(sketch9)
sketch9.AttachmentSupport = (doc.XY_Plane, [""])
sketch9.MapMode = "FlatFace"
sketch9.AttachmentOffset = App.Placement(Vector(0, 0, 4), App.Rotation())
sketch9.addGeometry([
    Part.Circle(Vector(-29.8445, 130.8119, 0), Vector(0, 0, 1), 1.25),
    Part.Circle(Vector(29.8445, 130.8119, 0), Vector(0, 0, 1), 1.25),
], False)
sketch9.addConstraint([
    Sketcher.Constraint("Equal", 0, 1),
    Sketcher.Constraint("Symmetric", 0, 3, 1, 3, -2),
    Sketcher.Constraint("Diameter", 0, 2.5),
    Sketcher.Constraint("DistanceY", -1, 1, 0, 3, 130.812),
    Sketcher.Constraint("DistanceX", 0, 3, 1, 3, 59.689),
])
pocket4 = doc.addObject("PartDesign::Pocket", "Pocket003")
body.addObject(pocket4)
pocket4.Profile = sketch9
pocket4.Length = 10
doc.recompute()

fillet2 = doc.addObject("PartDesign::Fillet", "Fillet001")
body.addObject(fillet2)
fillet2.Base = (pocket4, edges_at(pocket4, [
    (0, 152.812, 4),
    (39.844, 112.855, 4),
    (32.547, 44.695, 4),
    (-32.547, 43.445, 4),
    (-39.844, 107.855, 4),
]))
fillet2.Radius = 1

# Sketch on XY plane
sketch10 = doc.addObject("Sketcher::SketchObject", "Sketch009")
body.addObject(sketch10)
sketch10.AttachmentSupport = (doc.XY_Plane, [""])
sketch10.MapMode = "FlatFace"
sketch10.addGeometry([
    Part.Circle(Vector(-4.2555, 123.8119, 0), Vector(0, 0, 1), 1.25),
    Part.Circle(Vector(-4.2555, 69.8119, 0), Vector(0, 0, 1), 1.25),
], False)
sketch10.addConstraint([
    Sketcher.Constraint("Equal", 0, 1),
    Sketcher.Constraint("Vertical", 0, 3, 1, 3),
    Sketcher.Constraint("Diameter", 0, 2.5),
    Sketcher.Constraint("DistanceY", 1, 3, 0, 3, 54.0),
    Sketcher.Constraint("DistanceY", -1, 1, 0, 3, 123.812),
    Sketcher.Constraint("DistanceX", 0, 3, -1, 1, 4.2555),
])
pocket5 = doc.addObject("PartDesign::Pocket", "Pocket004")
body.addObject(pocket5)
pocket5.Profile = sketch10
pocket5.Length = 10
pocket5.Reversed = True

# Sketch on XY plane
sketch11 = doc.addObject("Sketcher::SketchObject", "Sketch010")
body.addObject(sketch11)
sketch11.AttachmentSupport = (doc.XY_Plane, [""])
sketch11.MapMode = "FlatFace"
sketch11.AttachmentOffset = App.Placement(Vector(0, 0, 4), App.Rotation())
sketch11.addGeometry([
    Part.Circle(Vector(-15.5, 15.5, 0), Vector(0, 0, 1), 3),  # 0
    Part.Circle(Vector(-15.5, 15.5, 0), Vector(0, 0, 1), 1.5),  # 1
    Part.Circle(Vector(15.5, 15.5, 0), Vector(0, 0, 1), 3),  # 2
    Part.Circle(Vector(15.5, 15.5, 0), Vector(0, 0, 1), 1.5),  # 3
    Part.Circle(Vector(-29.8445, 130.8119, 0), Vector(0, 0, 1), 2.5),  # 4
    Part.Circle(Vector(-29.8445, 130.8119, 0), Vector(0, 0, 1), 1.25),  # 5
    Part.Circle(Vector(-4.2555, 123.8119, 0), Vector(0, 0, 1), 2.5),  # 6
    Part.Circle(Vector(-4.2555, 123.8119, 0), Vector(0, 0, 1), 1.25),  # 7
    Part.Circle(Vector(29.8445, 130.8119, 0), Vector(0, 0, 1), 2.5),  # 8
    Part.Circle(Vector(29.8445, 130.8119, 0), Vector(0, 0, 1), 1.25),  # 9
    Part.Circle(Vector(-4.2555, 69.8119, 0), Vector(0, 0, 1), 2.5),  # 10
    Part.Circle(Vector(-4.2555, 69.8119, 0), Vector(0, 0, 1), 1.25),  # 11
    Part.Circle(Vector(-19.5, 28.25, 0), Vector(0, 0, 1), 2.5),  # 12
    Part.Circle(Vector(-19.5, 28.25, 0), Vector(0, 0, 1), 1.25),  # 13
    Part.Circle(Vector(19.5, 28.25, 0), Vector(0, 0, 1), 2.5),  # 14
    Part.Circle(Vector(19.5, 28.25, 0), Vector(0, 0, 1), 1.25),  # 15
    Part.Circle(Vector(-34.8445, 80.8119, 0), Vector(0, 0, 1), 2.25),  # 16
    Part.Circle(Vector(-34.8445, 80.8119, 0), Vector(0, 0, 1), 1),  # 17
    Part.Circle(Vector(-34.8445, 66.8119, 0), Vector(0, 0, 1), 2.25),  # 18
    Part.Circle(Vector(-34.8445, 66.8119, 0), Vector(0, 0, 1), 1),  # 19
    Part.Circle(Vector(34.8445, 80.8119, 0), Vector(0, 0, 1), 2.25),  # 20
    Part.Circle(Vector(34.8445, 80.8119, 0), Vector(0, 0, 1), 1),  # 21
    Part.Circle(Vector(34.8445, 66.8119, 0), Vector(0, 0, 1), 2.25),  # 22
    Part.Circle(Vector(34.8445, 66.8119, 0), Vector(0, 0, 1), 1),  # 23
], False)
sketch11.addConstraint([
    Sketcher.Constraint("Coincident", 1, 3, 0, 3),
    Sketcher.Constraint("Coincident", 3, 3, 2, 3),
    Sketcher.Constraint("Coincident", 5, 3, 4, 3),
    Sketcher.Constraint("Coincident", 7, 3, 6, 3),
    Sketcher.Constraint("Coincident", 9, 3, 8, 3),
    Sketcher.Constraint("Coincident", 11, 3, 10, 3),
    Sketcher.Constraint("Coincident", 13, 3, 12, 3),
    Sketcher.Constraint("Coincident", 15, 3, 14, 3),
    Sketcher.Constraint("Coincident", 17, 3, 16, 3),
    Sketcher.Constraint("Coincident", 19, 3, 18, 3),
    Sketcher.Constraint("Coincident", 21, 3, 20, 3),
    Sketcher.Constraint("Coincident", 23, 3, 22, 3),
    Sketcher.Constraint("Equal", 0, 2),
    Sketcher.Constraint("Equal", 1, 3),
    Sketcher.Constraint("Equal", 4, 6),
    Sketcher.Constraint("Equal", 5, 7),
    Sketcher.Constraint("Equal", 6, 8),
    Sketcher.Constraint("Equal", 7, 9),
    Sketcher.Constraint("Equal", 8, 10),
    Sketcher.Constraint("Equal", 9, 11),
    Sketcher.Constraint("Equal", 10, 12),
    Sketcher.Constraint("Equal", 11, 13),
    Sketcher.Constraint("Equal", 12, 14),
    Sketcher.Constraint("Equal", 13, 15),
    Sketcher.Constraint("Equal", 16, 18),
    Sketcher.Constraint("Equal", 17, 19),
    Sketcher.Constraint("Equal", 18, 20),
    Sketcher.Constraint("Equal", 19, 21),
    Sketcher.Constraint("Equal", 20, 22),
    Sketcher.Constraint("Equal", 21, 23),
    Sketcher.Constraint("Symmetric", 0, 3, 2, 3, -2),
    Sketcher.Constraint("Symmetric", 4, 3, 8, 3, -2),
    Sketcher.Constraint("Symmetric", 12, 3, 14, 3, -2),
    Sketcher.Constraint("Symmetric", 16, 3, 20, 3, -2),
    Sketcher.Constraint("Symmetric", 18, 3, 22, 3, -2),
    Sketcher.Constraint("Vertical", 7, 3, 10, 3),
    Sketcher.Constraint("Vertical", 17, 3, 18, 3),
    Sketcher.Constraint("Diameter", 0, 6.0),
    Sketcher.Constraint("Diameter", 4, 5.0),
    Sketcher.Constraint("Diameter", 16, 4.5),
    Sketcher.Constraint("Diameter", 1, 3.0),
    Sketcher.Constraint("Diameter", 17, 2.0),
    Sketcher.Constraint("DistanceX", 16, 3, 4, 3, 5.0),
    Sketcher.Constraint("Diameter", 5, 2.5),
    Sketcher.Constraint("DistanceX", 0, 3, 2, 3, 31.0),
    Sketcher.Constraint("DistanceY", 6, 3, 4, 3, 7.0),
    Sketcher.Constraint("DistanceY", 10, 3, 6, 3, 54.0),
    Sketcher.Constraint("DistanceX", 12, 3, 0, 3, 4.0),
    Sketcher.Constraint("DistanceY", 10, 3, 16, 3, 11.0),
    Sketcher.Constraint("DistanceY", 18, 3, 16, 3, 14.0),
    Sketcher.Constraint("DistanceY", -1, 1, 0, 3, 15.5),
    Sketcher.Constraint("DistanceX", 6, 3, 8, 3, 34.1),
    Sketcher.Constraint("DistanceY", -1, 1, 12, 3, 28.25),
    Sketcher.Constraint("DistanceY", -1, 1, 4, 3, 130.812),
    Sketcher.Constraint("DistanceX", 4, 3, 6, 3, 25.589),
])
pocket6 = doc.addObject("PartDesign::Pocket", "Pocket005")
body.addObject(pocket6)
pocket6.Profile = sketch11
pocket6.Length = 1

doc.recompute()
